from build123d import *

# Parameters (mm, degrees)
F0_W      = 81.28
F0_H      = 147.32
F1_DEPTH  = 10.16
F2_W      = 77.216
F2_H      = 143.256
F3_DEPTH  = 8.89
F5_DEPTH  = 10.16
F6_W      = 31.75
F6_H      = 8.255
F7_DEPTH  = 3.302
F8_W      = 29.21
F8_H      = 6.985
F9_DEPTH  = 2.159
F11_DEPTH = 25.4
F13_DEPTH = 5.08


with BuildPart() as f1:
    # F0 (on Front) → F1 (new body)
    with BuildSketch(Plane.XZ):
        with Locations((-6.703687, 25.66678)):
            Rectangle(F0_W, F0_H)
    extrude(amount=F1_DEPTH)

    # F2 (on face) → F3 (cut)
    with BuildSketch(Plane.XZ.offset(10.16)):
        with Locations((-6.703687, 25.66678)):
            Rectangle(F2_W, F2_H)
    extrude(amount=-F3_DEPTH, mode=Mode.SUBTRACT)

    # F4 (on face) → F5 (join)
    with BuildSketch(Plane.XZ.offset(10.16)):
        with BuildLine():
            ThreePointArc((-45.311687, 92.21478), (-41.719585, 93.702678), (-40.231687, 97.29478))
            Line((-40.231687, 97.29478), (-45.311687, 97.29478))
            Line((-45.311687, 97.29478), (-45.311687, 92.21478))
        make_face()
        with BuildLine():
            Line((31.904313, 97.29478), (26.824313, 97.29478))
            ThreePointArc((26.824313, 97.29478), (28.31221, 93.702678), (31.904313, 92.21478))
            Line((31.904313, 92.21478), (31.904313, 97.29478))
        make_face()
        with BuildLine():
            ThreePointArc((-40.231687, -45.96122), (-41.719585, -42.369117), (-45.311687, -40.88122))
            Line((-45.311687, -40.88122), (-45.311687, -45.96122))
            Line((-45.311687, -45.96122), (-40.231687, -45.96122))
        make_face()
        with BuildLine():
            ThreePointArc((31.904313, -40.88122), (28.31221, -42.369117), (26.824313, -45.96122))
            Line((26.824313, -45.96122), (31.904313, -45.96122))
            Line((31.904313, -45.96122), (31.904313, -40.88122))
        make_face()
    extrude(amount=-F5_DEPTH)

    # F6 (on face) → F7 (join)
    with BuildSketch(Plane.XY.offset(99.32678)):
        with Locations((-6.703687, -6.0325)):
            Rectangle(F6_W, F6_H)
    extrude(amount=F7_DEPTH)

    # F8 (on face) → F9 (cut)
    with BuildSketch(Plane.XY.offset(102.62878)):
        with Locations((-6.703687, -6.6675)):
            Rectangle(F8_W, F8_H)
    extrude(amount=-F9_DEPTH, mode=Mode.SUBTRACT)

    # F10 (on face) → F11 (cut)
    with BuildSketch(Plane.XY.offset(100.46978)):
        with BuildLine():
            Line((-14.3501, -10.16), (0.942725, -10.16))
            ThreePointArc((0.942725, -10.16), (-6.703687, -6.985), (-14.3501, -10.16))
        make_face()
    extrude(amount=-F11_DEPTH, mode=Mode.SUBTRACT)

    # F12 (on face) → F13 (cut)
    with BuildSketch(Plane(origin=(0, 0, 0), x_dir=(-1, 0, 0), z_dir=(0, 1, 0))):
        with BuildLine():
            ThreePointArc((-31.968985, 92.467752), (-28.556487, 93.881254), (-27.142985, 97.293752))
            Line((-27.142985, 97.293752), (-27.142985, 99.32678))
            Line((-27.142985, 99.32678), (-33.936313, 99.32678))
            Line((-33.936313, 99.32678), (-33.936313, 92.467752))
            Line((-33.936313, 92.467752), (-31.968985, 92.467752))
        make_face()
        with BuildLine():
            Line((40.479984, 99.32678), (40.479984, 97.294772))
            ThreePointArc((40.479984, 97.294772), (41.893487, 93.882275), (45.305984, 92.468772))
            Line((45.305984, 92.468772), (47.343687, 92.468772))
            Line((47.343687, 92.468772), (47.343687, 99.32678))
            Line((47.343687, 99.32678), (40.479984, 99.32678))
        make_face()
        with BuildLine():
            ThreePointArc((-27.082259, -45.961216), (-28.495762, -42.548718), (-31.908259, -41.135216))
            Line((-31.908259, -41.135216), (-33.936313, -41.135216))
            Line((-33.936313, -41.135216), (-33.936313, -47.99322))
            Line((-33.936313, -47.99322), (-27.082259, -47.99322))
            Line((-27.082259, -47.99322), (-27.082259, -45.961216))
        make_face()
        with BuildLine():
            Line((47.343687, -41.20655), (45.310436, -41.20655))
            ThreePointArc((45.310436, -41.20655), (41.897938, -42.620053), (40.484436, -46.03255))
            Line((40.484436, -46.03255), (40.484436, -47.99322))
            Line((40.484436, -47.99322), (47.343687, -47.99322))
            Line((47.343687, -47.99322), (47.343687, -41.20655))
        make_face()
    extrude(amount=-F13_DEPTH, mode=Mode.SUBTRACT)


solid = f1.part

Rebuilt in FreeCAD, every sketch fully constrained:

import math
import FreeCAD as App
import Part
import Sketcher
from FreeCAD import Vector
Q = App.Units.Quantity

doc = App.newDocument("Part")
body = doc.addObject("PartDesign::Body", "Body")

# Sketch on XZ plane
sketch1 = body.newObject("Sketcher::SketchObject", "Sketch")
sketch1.AttachmentSupport = (doc.getObject("XZ_Plane"), [""])
sketch1.MapMode = "FlatFace"
sketch1.addGeometry([
    Part.LineSegment(Vector(-47, 99, 0), Vector(-47, -48, 0)),
    Part.LineSegment(Vector(-47, -48, 0), Vector(34, -48, 0)),
    Part.LineSegment(Vector(34, -48, 0), Vector(34, 99, 0)),
    Part.LineSegment(Vector(34, 99, 0), Vector(-47, 99, 0)),
], False)
sketch1.addConstraint([
    Sketcher.Constraint("Coincident", 0, 2, 1, 1),
    Sketcher.Constraint("Coincident", 1, 2, 2, 1),
    Sketcher.Constraint("Coincident", 2, 2, 3, 1),
    Sketcher.Constraint("Coincident", 3, 2, 0, 1),
    Sketcher.Constraint("Vertical", 0),
    Sketcher.Constraint("Horizontal", 1),
    Sketcher.Constraint("Vertical", 2),
    Sketcher.Constraint("Horizontal", 3),
    Sketcher.Constraint("DistanceX", 1, 1, 1, 2, Q("3.2 in")),
    Sketcher.Constraint("DistanceY", 0, 2, 0, 1, Q("5.8 in")),
    Sketcher.Constraint("DistanceY", 0, 2, -1, 1, Q("47.99322 mm")),
    Sketcher.Constraint("DistanceX", 0, 2, -1, 1, Q("47.343687 mm")),
])
pad1 = body.newObject("PartDesign::Pad", "Pad")
pad1.Profile = sketch1
pad1.Length = Q("0.4 in")

# Sketch on XZ plane
sketch2 = body.newObject("Sketcher::SketchObject", "Sketch001")
sketch2.AttachmentSupport = (doc.getObject("XZ_Plane"), [""])
sketch2.MapMode = "FlatFace"
sketch2.AttachmentOffset = App.Placement(Vector(0, 0, 0.4 * 25.4), App.Rotation())
sketch2.addGeometry([
    Part.LineSegment(Vector(-45, 97, 0), Vector(-45, -46, 0)),
    Part.LineSegment(Vector(-45, -46, 0), Vector(32, -46, 0)),
    Part.LineSegment(Vector(32, -46, 0), Vector(32, 97, 0)),
    Part.LineSegment(Vector(32, 97, 0), Vector(-45, 97, 0)),
], False)
sketch2.addConstraint([
    Sketcher.Constraint("Coincident", 0, 2, 1, 1),
    Sketcher.Constraint("Coincident", 1, 2, 2, 1),
    Sketcher.Constraint("Coincident", 2, 2, 3, 1),
    Sketcher.Constraint("Coincident", 3, 2, 0, 1),
    Sketcher.Constraint("Vertical", 0),
    Sketcher.Constraint("Horizontal", 1),
    Sketcher.Constraint("Vertical", 2),
    Sketcher.Constraint("Horizontal", 3),
    Sketcher.Constraint("DistanceX", 1, 1, 1, 2, Q("3.04 in")),
    Sketcher.Constraint("DistanceY", 0, 2, 0, 1, Q("5.64 in")),
    Sketcher.Constraint("DistanceY", 0, 2, -1, 1, Q("45.96122 mm")),
    Sketcher.Constraint("DistanceX", 0, 2, -1, 1, Q("45.311687 mm")),
])
pocket1 = body.newObject("PartDesign::Pocket", "Pocket")
pocket1.Profile = sketch2
pocket1.Length = Q("0.35 in")

# Sketch on XZ plane
sketch3 = body.newObject("Sketcher::SketchObject", "Sketch002")
sketch3.AttachmentSupport = (doc.getObject("XZ_Plane"), [""])
sketch3.MapMode = "FlatFace"
sketch3.AttachmentOffset = App.Placement(Vector(0, 0, 0.4 * 25.4), App.Rotation())
sketch3.addGeometry([
    Part.ArcOfCircle(Part.Circle(Vector(-45, 97, 0), Vector(0, 0, 1), 5), math.radians(-90), math.radians(0)),  # 0
    Part.LineSegment(Vector(-40, 97, 0), Vector(-45, 97, 0)),  # 1
    Part.LineSegment(Vector(-45, 97, 0), Vector(-45, 92, 0)),  # 2
    Part.LineSegment(Vector(32, 97, 0), Vector(27, 97, 0)),  # 3
    Part.ArcOfCircle(Part.Circle(Vector(32, 97, 0), Vector(0, 0, 1), 5), math.radians(180), math.radians(270)),  # 4
    Part.LineSegment(Vector(32, 92, 0), Vector(32, 97, 0)),  # 5
    Part.ArcOfCircle(Part.Circle(Vector(-45, -46, 0), Vector(0, 0, 1), 5), math.radians(0), math.radians(90)),  # 6
    Part.LineSegment(Vector(-45, -41, 0), Vector(-45, -46, 0)),  # 7
    Part.LineSegment(Vector(-45, -46, 0), Vector(-40, -46, 0)),  # 8
    Part.ArcOfCircle(Part.Circle(Vector(32, -46, 0), Vector(0, 0, 1), 5), math.radians(90), math.radians(180)),  # 9
    Part.LineSegment(Vector(27, -46, 0), Vector(32, -46, 0)),  # 10
    Part.LineSegment(Vector(32, -46, 0), Vector(32, -41, 0)),  # 11
], False)
sketch3.addConstraint([
    Sketcher.Constraint("Coincident", 0, 2, 1, 1),
    Sketcher.Constraint("Coincident", 1, 2, 2, 1),
    Sketcher.Constraint("Coincident", 2, 2, 0, 1),
    Sketcher.Constraint("Coincident", 3, 2, 4, 1),
    Sketcher.Constraint("Coincident", 4, 2, 5, 1),
    Sketcher.Constraint("Coincident", 5, 2, 3, 1),
    Sketcher.Constraint("Coincident", 6, 2, 7, 1),
    Sketcher.Constraint("Coincident", 7, 2, 8, 1),
    Sketcher.Constraint("Coincident", 8, 2, 6, 1),
    Sketcher.Constraint("Coincident", 9, 2, 10, 1),
    Sketcher.Constraint("Coincident", 10, 2, 11, 1),
    Sketcher.Constraint("Coincident", 11, 2, 9, 1),
    Sketcher.Constraint("Horizontal", 1),
    Sketcher.Constraint("Vertical", 2),
    Sketcher.Constraint("Horizontal", 3),
    Sketcher.Constraint("Vertical", 5),
    Sketcher.Constraint("Vertical", 7),
    Sketcher.Constraint("Horizontal", 8),
    Sketcher.Constraint("Horizontal", 10),
    Sketcher.Constraint("Vertical", 11),
    Sketcher.Constraint("Coincident", 1, 2, 0, 3),
    Sketcher.Constraint("Coincident", 5, 2, 4, 3),
    Sketcher.Constraint("Coincident", 7, 2, 6, 3),
    Sketcher.Constraint("Coincident", 10, 2, 9, 3),
    Sketcher.Constraint("Equal", 0, 4),
    Sketcher.Constraint("Equal", 4, 6),
    Sketcher.Constraint("Equal", 6, 9),
    Sketcher.Constraint("Horizontal", 0, 3, 4, 3),
    Sketcher.Constraint("Horizontal", 6, 3, 9, 3),
    Sketcher.Constraint("Vertical", 0, 3, 6, 3),
    Sketcher.Constraint("Vertical", 4, 3, 9, 3),
    Sketcher.Constraint("Radius", 0, Q("0.2000001 in")),
    Sketcher.Constraint("DistanceX", 0, 3, 4, 3, Q("3.0400001 in")),
    Sketcher.Constraint("DistanceY", 6, 3, 0, 3, Q("5.6400001 in")),
    Sketcher.Constraint("DistanceX", 0, 3, -1, 1, Q("45.311689 mm")),
    Sketcher.Constraint("DistanceY", -1, 1, 0, 3, Q("97.294782 mm")),
])
pad2 = body.newObject("PartDesign::Pad", "Pad001")
pad2.Profile = sketch3
pad2.Length = Q("0.4 in")
pad2.Reversed = True

# Sketch on XY plane
sketch4 = body.newObject("Sketcher::SketchObject", "Sketch003")
sketch4.AttachmentSupport = (doc.getObject("XY_Plane"), [""])
sketch4.MapMode = "FlatFace"
sketch4.AttachmentOffset = App.Placement(Vector(0, 0, 99.32678), App.Rotation())
sketch4.addGeometry([
    Part.LineSegment(Vector(-23, -2, 0), Vector(-23, -10, 0)),
    Part.LineSegment(Vector(-23, -10, 0), Vector(9, -10, 0)),
    Part.LineSegment(Vector(9, -10, 0), Vector(9, -2, 0)),
    Part.LineSegment(Vector(9, -2, 0), Vector(-23, -2, 0)),
], False)
sketch4.addConstraint([
    Sketcher.Constraint("Coincident", 0, 2, 1, 1),
    Sketcher.Constraint("Coincident", 1, 2, 2, 1),
    Sketcher.Constraint("Coincident", 2, 2, 3, 1),
    Sketcher.Constraint("Coincident", 3, 2, 0, 1),
    Sketcher.Constraint("Vertical", 0),
    Sketcher.Constraint("Horizontal", 1),
    Sketcher.Constraint("Vertical", 2),
    Sketcher.Constraint("Horizontal", 3),
    Sketcher.Constraint("DistanceX", 1, 1, 1, 2, Q("1.25 in")),
    Sketcher.Constraint("DistanceY", 0, 2, -1, 1, Q("0.4 in")),
    Sketcher.Constraint("DistanceY", 0, 2, 0, 1, Q("0.325 in")),
    Sketcher.Constraint("DistanceX", 0, 2, -1, 1, Q("22.578687 mm")),
])
pad3 = body.newObject("PartDesign::Pad", "Pad002")
pad3.Profile = sketch4
pad3.Length = Q("0.13 in")

# Sketch on XY plane
sketch5 = body.newObject("Sketcher::SketchObject", "Sketch004")
sketch5.AttachmentSupport = (doc.getObject("XY_Plane"), [""])
sketch5.MapMode = "FlatFace"
sketch5.AttachmentOffset = App.Placement(Vector(0, 0, 102.62878), App.Rotation())
sketch5.addGeometry([
    Part.LineSegment(Vector(-21, -3, 0), Vector(-21, -10, 0)),
    Part.LineSegment(Vector(-21, -10, 0), Vector(8, -10, 0)),
    Part.LineSegment(Vector(8, -10, 0), Vector(8, -3, 0)),
    Part.LineSegment(Vector(8, -3, 0), Vector(-21, -3, 0)),
], False)
sketch5.addConstraint([
    Sketcher.Constraint("Coincident", 0, 2, 1, 1),
    Sketcher.Constraint("Coincident", 1, 2, 2, 1),
    Sketcher.Constraint("Coincident", 2, 2, 3, 1),
    Sketcher.Constraint("Coincident", 3, 2, 0, 1),
    Sketcher.Constraint("Vertical", 0),
    Sketcher.Constraint("Horizontal", 1),
    Sketcher.Constraint("Vertical", 2),
    Sketcher.Constraint("Horizontal", 3),
    Sketcher.Constraint("DistanceX", 1, 1, 1, 2, Q("1.15 in")),
    Sketcher.Constraint("DistanceY", 0, 2, -1, 1, Q("0.4 in")),
    Sketcher.Constraint("DistanceY", 0, 2, 0, 1, Q("0.275 in")),
    Sketcher.Constraint("DistanceX", 0, 2, -1, 1, Q("21.308687 mm")),
])
pocket2 = body.newObject("PartDesign::Pocket", "Pocket001")
pocket2.Profile = sketch5
pocket2.Length = Q("0.085 in")

# Sketch on XY plane
sketch6 = body.newObject("Sketcher::SketchObject", "Sketch005")
sketch6.AttachmentSupport = (doc.getObject("XY_Plane"), [""])
sketch6.MapMode = "FlatFace"
sketch6.AttachmentOffset = App.Placement(Vector(0, 0, 100.46978), App.Rotation())
sketch6.addGeometry([
    Part.LineSegment(Vector(-14, -10, 0), Vector(1, -10, 0)),
    Part.ArcOfCircle(Part.Circle(Vector(-7, -18, 0), Vector(0, 0, 1), 11), math.radians(45), math.radians(135)),
], False)
sketch6.addConstraint([
    Sketcher.Constraint("Coincident", 0, 1, 1, 2),
    Sketcher.Constraint("Coincident", 1, 1, 0, 2),
    Sketcher.Constraint("Horizontal", 0),
    Sketcher.Constraint("Radius", 1, Q("0.425 in")),
    Sketcher.Constraint("DistanceY", 1, 3, -1, 1, Q("0.7 in")),
    Sketcher.Constraint("DistanceY", 0, 1, -1, 1, Q("0.4 in")),
    Sketcher.Constraint("DistanceX", 0, 1, -1, 1, Q("14.3501 mm")),
])
pocket3 = body.newObject("PartDesign::Pocket", "Pocket002")
pocket3.Profile = sketch6
pocket3.Length = Q("1 in")

# Sketch on XZ plane
sketch7 = body.newObject("Sketcher::SketchObject", "Sketch006")
sketch7.AttachmentSupport = (doc.getObject("XZ_Plane"), [""])
sketch7.MapMode = "FlatFace"
sketch7.addGeometry([
    Part.ArcOfCircle(Part.Circle(Vector(32, 97.3, 0), Vector(0, 0, 1), 4.8), math.radians(180), math.radians(270)),  # 0
    Part.LineSegment(Vector(27.1, 97.3, 0), Vector(27.1, 99.3, 0)),  # 1
    Part.LineSegment(Vector(27.1, 99.3, 0), Vector(33.9, 99.3, 0)),  # 2
    Part.LineSegment(Vector(33.9, 99.3, 0), Vector(33.9, 92.5, 0)),  # 3
    Part.LineSegment(Vector(33.9, 92.5, 0), Vector(32, 92.5, 0)),  # 4
    Part.LineSegment(Vector(-40.5, 99.3, 0), Vector(-40.5, 97.3, 0)),  # 5
    Part.ArcOfCircle(Part.Circle(Vector(-45.3, 97.3, 0), Vector(0, 0, 1), 4.8), math.radians(-90), math.radians(0)),  # 6
    Part.LineSegment(Vector(-45.3, 92.5, 0), Vector(-47.3, 92.5, 0)),  # 7
    Part.LineSegment(Vector(-47.3, 92.5, 0), Vector(-47.3, 99.3, 0)),  # 8
    Part.LineSegment(Vector(-47.3, 99.3, 0), Vector(-40.5, 99.3, 0)),  # 9
    Part.ArcOfCircle(Part.Circle(Vector(31.9, -46, 0), Vector(0, 0, 1), 4.8), math.radians(90), math.radians(180)),  # 10
    Part.LineSegment(Vector(31.9, -41.1, 0), Vector(33.9, -41.1, 0)),  # 11
    Part.LineSegment(Vector(33.9, -41.1, 0), Vector(33.9, -48, 0)),  # 12
    Part.LineSegment(Vector(33.9, -48, 0), Vector(27.1, -48, 0)),  # 13
    Part.LineSegment(Vector(27.1, -48, 0), Vector(27.1, -46, 0)),  # 14
    Part.LineSegment(Vector(-47.3, -41.2, 0), Vector(-45.3, -41.2, 0)),  # 15
    Part.ArcOfCircle(Part.Circle(Vector(-45.3, -46, 0), Vector(0, 0, 1), 4.8), math.radians(0), math.radians(90)),  # 16
    Part.LineSegment(Vector(-40.5, -46, 0), Vector(-40.5, -48, 0)),  # 17
    Part.LineSegment(Vector(-40.5, -48, 0), Vector(-47.3, -48, 0)),  # 18
    Part.LineSegment(Vector(-47.3, -48, 0), Vector(-47.3, -41.2, 0)),  # 19
], False)
sketch7.addConstraint([
    Sketcher.Constraint("Tangent", 0, 1, 1, 1),
    Sketcher.Constraint("Coincident", 1, 2, 2, 1),
    Sketcher.Constraint("Coincident", 2, 2, 3, 1),
    Sketcher.Constraint("Coincident", 3, 2, 4, 1),
    Sketcher.Constraint("Tangent", 4, 2, 0, 2),
    Sketcher.Constraint("Tangent", 5, 2, 6, 2),
    Sketcher.Constraint("Tangent", 6, 1, 7, 1),
    Sketcher.Constraint("Coincident", 7, 2, 8, 1),
    Sketcher.Constraint("Coincident", 8, 2, 9, 1),
    Sketcher.Constraint("Coincident", 9, 2, 5, 1),
    Sketcher.Constraint("Tangent", 10, 1, 11, 1),
    Sketcher.Constraint("Coincident", 11, 2, 12, 1),
    Sketcher.Constraint("Coincident", 12, 2, 13, 1),
    Sketcher.Constraint("Coincident", 13, 2, 14, 1),
    Sketcher.Constraint("Tangent", 14, 2, 10, 2),
    Sketcher.Constraint("Tangent", 15, 2, 16, 2),
    Sketcher.Constraint("Tangent", 16, 1, 17, 1),
    Sketcher.Constraint("Coincident", 17, 2, 18, 1),
    Sketcher.Constraint("Coincident", 18, 2, 19, 1),
    Sketcher.Constraint("Coincident", 19, 2, 15, 1),
    Sketcher.Constraint("Vertical", 1),
    Sketcher.Constraint("Horizontal", 2),
    Sketcher.Constraint("Vertical", 3),
    Sketcher.Constraint("Horizontal", 4),
    Sketcher.Constraint("Vertical", 5),
    Sketcher.Constraint("Horizontal", 7),
    Sketcher.Constraint("Vertical", 8),
    Sketcher.Constraint("Horizontal", 9),
    Sketcher.Constraint("Horizontal", 11),
    Sketcher.Constraint("Vertical", 12),
    Sketcher.Constraint("Horizontal", 13),
    Sketcher.Constraint("Vertical", 14),
    Sketcher.Constraint("Horizontal", 15),
    Sketcher.Constraint("Vertical", 17),
    Sketcher.Constraint("Horizontal", 18),
    Sketcher.Constraint("Vertical", 19),
    Sketcher.Constraint("Equal", 6, 10),
    Sketcher.Constraint("Equal", 10, 16),
    Sketcher.Constraint("Horizontal", 2, 2, 8, 2),
    Sketcher.Constraint("Horizontal", 13, 2, 17, 2),
    Sketcher.Constraint("Vertical", 3, 2, 11, 2),
    Sketcher.Constraint("Vertical", 8, 2, 18, 2),
    Sketcher.Constraint("Radius", 0, Q("0.1899999 in")),
    Sketcher.Constraint("Radius", 6, Q("0.19 in")),
    Sketcher.Constraint("DistanceY", 12, 2, 12, 1, Q("0.2700002 in")),
    Sketcher.Constraint("DistanceY", 10, 3, 1, 2, Q("5.7199998 in")),
    Sketcher.Constraint("DistanceX", 5, 2, -1, 1, Q("1.5937002 in")),
    Sketcher.Constraint("DistanceX", 15, 1, 15, 2, Q("2.033251 mm")),
    Sketcher.Constraint("DistanceY", 1, 1, 1, 2, Q("2.033028 mm")),
    Sketcher.Constraint("DistanceY", 5, 2, 5, 1, Q("2.032008 mm")),
    Sketcher.Constraint("DistanceY", 17, 2, 17, 1, Q("1.96067 mm")),
    Sketcher.Constraint("DistanceX", 6, 3, 2, 2, Q("79.242298 mm")),
    Sketcher.Constraint("DistanceX", 7, 2, 6, 3, Q("2.037702 mm")),
    Sketcher.Constraint("DistanceX", 2, 1, 2, 2, Q("6.793328 mm")),
    Sketcher.Constraint("DistanceX", 11, 1, 11, 2, Q("2.028054 mm")),
    Sketcher.Constraint("DistanceY", -1, 1, 0, 3, Q("97.29375 mm")),
])
pocket4 = body.newObject("PartDesign::Pocket", "Pocket003")
pocket4.Profile = sketch7
pocket4.Length = Q("0.2 in")
pocket4.Reversed = True

doc.recompute()
